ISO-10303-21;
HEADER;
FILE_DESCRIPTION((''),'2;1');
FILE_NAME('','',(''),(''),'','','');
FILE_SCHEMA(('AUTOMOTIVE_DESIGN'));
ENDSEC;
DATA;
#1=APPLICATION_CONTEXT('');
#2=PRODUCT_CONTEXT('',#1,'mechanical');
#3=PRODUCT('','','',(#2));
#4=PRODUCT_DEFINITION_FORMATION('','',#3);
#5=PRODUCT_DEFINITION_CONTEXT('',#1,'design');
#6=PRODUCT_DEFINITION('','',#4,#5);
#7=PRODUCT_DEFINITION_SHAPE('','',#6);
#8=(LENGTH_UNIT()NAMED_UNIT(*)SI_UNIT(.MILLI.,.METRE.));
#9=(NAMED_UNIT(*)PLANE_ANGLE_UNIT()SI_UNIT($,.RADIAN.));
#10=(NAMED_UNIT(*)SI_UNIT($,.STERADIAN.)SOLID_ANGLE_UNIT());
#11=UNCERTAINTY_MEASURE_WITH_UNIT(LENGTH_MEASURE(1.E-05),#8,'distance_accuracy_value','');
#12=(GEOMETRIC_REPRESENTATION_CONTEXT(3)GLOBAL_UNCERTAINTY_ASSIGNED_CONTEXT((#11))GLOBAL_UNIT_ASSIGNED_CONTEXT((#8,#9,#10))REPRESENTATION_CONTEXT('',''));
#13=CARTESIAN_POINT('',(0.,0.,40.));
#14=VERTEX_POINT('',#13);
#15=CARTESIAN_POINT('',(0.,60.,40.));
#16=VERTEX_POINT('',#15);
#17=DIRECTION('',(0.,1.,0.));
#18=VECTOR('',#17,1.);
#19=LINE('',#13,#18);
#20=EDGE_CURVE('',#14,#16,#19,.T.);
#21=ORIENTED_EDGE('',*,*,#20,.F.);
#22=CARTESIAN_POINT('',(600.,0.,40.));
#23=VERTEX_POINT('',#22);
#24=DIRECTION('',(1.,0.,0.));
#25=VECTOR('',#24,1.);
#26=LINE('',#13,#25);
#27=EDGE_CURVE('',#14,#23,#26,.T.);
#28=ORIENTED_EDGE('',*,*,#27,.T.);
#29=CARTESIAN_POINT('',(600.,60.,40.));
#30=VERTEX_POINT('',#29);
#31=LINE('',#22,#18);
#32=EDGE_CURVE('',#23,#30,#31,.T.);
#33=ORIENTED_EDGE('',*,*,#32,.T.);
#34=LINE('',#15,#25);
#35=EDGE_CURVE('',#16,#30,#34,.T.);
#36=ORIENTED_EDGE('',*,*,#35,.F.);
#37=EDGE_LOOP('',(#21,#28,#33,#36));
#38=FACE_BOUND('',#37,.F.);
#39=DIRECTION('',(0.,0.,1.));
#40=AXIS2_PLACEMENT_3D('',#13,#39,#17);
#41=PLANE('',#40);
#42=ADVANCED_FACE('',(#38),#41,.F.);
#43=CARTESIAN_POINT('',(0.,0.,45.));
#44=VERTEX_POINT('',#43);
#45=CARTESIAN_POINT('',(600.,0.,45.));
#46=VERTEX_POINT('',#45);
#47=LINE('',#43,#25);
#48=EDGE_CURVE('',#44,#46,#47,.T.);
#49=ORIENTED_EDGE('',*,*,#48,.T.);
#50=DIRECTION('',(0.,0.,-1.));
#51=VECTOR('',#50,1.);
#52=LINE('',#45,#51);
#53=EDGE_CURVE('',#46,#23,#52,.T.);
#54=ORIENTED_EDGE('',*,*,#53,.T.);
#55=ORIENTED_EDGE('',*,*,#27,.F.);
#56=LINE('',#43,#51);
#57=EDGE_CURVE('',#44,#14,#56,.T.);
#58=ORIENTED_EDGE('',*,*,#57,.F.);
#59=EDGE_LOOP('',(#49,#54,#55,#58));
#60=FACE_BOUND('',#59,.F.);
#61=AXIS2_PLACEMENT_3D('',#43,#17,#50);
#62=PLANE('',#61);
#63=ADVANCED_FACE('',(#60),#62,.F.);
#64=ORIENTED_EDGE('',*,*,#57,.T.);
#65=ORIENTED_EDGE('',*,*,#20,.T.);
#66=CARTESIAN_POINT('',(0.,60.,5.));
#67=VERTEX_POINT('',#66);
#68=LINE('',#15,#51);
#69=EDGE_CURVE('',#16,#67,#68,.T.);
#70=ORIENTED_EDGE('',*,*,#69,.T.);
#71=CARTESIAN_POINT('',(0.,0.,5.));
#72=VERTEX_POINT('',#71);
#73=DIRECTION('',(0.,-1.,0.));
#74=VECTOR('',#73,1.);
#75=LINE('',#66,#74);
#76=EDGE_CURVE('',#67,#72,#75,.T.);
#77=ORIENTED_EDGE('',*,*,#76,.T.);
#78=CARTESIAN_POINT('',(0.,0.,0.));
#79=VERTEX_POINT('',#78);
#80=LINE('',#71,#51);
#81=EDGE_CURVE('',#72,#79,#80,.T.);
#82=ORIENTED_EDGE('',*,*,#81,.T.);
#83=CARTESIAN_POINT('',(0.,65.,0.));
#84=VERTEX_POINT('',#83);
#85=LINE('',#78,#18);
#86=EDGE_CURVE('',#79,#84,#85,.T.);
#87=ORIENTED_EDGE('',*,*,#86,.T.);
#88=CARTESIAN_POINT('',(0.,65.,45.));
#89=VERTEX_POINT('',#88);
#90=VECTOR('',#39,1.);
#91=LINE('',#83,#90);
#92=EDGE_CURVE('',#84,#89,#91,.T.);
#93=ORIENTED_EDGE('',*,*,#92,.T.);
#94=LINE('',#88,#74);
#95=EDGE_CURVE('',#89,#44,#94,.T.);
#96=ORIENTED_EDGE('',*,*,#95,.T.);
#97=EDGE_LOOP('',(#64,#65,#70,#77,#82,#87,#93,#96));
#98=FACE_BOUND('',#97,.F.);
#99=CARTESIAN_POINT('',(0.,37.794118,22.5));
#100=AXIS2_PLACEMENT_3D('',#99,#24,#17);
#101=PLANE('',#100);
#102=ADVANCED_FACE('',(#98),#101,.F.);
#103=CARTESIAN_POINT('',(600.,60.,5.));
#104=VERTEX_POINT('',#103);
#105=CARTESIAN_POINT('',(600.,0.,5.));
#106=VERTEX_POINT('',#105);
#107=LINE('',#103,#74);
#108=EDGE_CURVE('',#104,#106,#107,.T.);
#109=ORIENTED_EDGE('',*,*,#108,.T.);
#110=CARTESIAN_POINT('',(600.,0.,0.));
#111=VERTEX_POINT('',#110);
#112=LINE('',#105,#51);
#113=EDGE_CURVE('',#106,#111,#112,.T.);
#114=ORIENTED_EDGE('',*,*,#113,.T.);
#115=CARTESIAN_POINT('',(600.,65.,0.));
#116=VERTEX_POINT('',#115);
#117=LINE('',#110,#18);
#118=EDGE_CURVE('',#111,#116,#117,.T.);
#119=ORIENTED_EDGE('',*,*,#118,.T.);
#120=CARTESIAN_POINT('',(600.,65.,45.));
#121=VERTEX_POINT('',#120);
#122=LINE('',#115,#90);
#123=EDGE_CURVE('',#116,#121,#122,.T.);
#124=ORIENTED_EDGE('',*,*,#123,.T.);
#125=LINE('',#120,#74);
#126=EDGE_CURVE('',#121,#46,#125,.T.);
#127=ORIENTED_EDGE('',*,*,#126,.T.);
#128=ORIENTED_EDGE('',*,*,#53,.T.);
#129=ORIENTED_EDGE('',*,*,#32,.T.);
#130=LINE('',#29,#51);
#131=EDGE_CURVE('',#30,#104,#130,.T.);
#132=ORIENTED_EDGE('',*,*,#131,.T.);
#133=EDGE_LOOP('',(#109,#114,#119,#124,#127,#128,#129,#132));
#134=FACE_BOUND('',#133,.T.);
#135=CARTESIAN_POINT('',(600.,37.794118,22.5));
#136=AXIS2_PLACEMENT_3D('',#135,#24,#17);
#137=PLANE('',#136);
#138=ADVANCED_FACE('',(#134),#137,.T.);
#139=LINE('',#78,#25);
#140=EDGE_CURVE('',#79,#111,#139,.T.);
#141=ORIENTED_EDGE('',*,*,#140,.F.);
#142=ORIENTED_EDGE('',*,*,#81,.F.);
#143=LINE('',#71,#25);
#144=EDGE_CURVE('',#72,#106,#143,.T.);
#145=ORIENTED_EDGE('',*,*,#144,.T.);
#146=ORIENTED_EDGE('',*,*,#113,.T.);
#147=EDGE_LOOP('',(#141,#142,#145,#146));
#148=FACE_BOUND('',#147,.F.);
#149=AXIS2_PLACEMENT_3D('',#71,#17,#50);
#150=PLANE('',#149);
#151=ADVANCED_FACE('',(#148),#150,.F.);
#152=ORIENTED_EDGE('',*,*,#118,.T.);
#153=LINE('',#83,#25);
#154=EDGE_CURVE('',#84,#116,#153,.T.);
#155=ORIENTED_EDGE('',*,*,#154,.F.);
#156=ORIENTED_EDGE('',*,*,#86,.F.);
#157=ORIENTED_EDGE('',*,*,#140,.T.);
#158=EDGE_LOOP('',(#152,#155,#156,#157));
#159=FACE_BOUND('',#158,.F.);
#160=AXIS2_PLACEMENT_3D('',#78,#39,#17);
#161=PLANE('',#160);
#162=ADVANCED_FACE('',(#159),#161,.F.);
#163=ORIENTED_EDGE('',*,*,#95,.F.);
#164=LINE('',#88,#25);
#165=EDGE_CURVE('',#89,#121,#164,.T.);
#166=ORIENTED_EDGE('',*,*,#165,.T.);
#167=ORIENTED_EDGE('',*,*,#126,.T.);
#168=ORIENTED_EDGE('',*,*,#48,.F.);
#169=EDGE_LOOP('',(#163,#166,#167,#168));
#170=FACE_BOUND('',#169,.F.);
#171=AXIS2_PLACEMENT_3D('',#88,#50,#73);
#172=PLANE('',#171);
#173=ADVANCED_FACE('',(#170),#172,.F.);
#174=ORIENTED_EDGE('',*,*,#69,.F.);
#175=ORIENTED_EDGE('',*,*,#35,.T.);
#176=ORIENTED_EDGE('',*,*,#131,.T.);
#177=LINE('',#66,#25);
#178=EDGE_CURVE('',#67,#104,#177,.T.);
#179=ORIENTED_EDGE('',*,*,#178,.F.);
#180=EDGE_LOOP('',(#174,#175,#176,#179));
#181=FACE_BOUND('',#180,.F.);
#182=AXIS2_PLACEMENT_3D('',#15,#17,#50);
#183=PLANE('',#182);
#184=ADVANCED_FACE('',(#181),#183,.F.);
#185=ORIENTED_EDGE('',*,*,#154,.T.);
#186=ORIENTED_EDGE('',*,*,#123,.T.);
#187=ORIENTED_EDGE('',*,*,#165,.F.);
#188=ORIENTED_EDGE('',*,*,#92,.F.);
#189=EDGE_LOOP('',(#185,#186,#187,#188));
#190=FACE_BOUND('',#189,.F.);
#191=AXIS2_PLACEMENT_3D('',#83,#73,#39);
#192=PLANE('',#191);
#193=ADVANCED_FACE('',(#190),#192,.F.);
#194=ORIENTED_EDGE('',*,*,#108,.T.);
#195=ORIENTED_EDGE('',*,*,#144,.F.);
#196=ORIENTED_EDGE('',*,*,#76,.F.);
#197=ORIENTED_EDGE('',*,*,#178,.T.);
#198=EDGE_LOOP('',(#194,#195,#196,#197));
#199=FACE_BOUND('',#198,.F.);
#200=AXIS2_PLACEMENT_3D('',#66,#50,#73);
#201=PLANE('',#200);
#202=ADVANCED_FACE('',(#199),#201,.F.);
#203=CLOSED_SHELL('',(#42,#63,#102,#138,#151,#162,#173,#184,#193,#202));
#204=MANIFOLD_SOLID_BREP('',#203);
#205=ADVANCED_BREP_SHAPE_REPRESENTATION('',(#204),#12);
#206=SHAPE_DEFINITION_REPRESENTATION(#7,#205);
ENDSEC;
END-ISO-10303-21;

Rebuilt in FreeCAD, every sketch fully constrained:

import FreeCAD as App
import Part
import Sketcher


def add_polygon(sketch, points):
    """Adds a closed chain of lines whose ends are joined by coincident constraints."""
    first, n = sketch.GeometryCount, len(points)
    for a, b in zip(points, points[1:] + points[:1]):
        sketch.addGeometry(Part.LineSegment(App.Vector(*a, 0), App.Vector(*b, 0)), False)
    for i in range(n):
        sketch.addConstraint(Sketcher.Constraint("Coincident", first + i, 2, first + (i + 1) % n, 1))

doc = App.newDocument("Part")
params = doc.addObject("Spreadsheet::Sheet", "Params")
for row, (alias, value) in enumerate([
    ("sketch1_width", "65 mm"),
    ("sketch1_width2", "60 mm"),
    ("sketch1_height", "45 mm"),
    ("sketch1_height2", "5 mm"),
    ("pad1_length", "600 mm"),
], start=1):
    params.set(f"A{row}", alias)
    params.set(f"B{row}", "=" + value)
    params.setAlias(f"B{row}", alias)

body = doc.addObject("PartDesign::Body", "Body")

# Sketch on YZ plane
sketch1 = doc.addObject("Sketcher::SketchObject", "Sketch")
body.addObject(sketch1)
sketch1.AttachmentSupport = (doc.YZ_Plane, [""])
sketch1.MapMode = "FlatFace"
add_polygon(sketch1, [(0, 0), (65, 0), (65, 45), (0, 45), (0, 40), (60, 40), (60, 5), (0, 5)])  # lines 0-7
sketch1.addConstraint([
    Sketcher.Constraint("Horizontal", 0),
    Sketcher.Constraint("Vertical", 1),
    Sketcher.Constraint("Horizontal", 2),
    Sketcher.Constraint("Vertical", 3),
    Sketcher.Constraint("Horizontal", 4),
    Sketcher.Constraint("Vertical", 5),
    Sketcher.Constraint("Horizontal", 6),
    Sketcher.Constraint("Vertical", 7),
    Sketcher.Constraint("Coincident", 7, 2, -1, 1),
    Sketcher.Constraint("PointOnObject", 2, 2, -2),
    Sketcher.Constraint("Equal", 3, 7),
    Sketcher.Constraint("DistanceX", 0, 1, 0, 2, 65.0),
    Sketcher.Constraint("DistanceX", 4, 1, 4, 2, 60.0),
    Sketcher.Constraint("DistanceY", 1, 1, 1, 2, 45.0),
    Sketcher.Constraint("DistanceY", 3, 2, 3, 1, 5.0),
])
sketch1.setExpression("Constraints[19]", "Params.sketch1_width")
sketch1.setExpression("Constraints[20]", "Params.sketch1_width2")
sketch1.setExpression("Constraints[21]", "Params.sketch1_height")
sketch1.setExpression("Constraints[22]", "Params.sketch1_height2")
pad1 = doc.addObject("PartDesign::Pad", "Pad")
body.addObject(pad1)
pad1.Profile = sketch1
pad1.setExpression("Length", "Params.pad1_length")

doc.recompute()
